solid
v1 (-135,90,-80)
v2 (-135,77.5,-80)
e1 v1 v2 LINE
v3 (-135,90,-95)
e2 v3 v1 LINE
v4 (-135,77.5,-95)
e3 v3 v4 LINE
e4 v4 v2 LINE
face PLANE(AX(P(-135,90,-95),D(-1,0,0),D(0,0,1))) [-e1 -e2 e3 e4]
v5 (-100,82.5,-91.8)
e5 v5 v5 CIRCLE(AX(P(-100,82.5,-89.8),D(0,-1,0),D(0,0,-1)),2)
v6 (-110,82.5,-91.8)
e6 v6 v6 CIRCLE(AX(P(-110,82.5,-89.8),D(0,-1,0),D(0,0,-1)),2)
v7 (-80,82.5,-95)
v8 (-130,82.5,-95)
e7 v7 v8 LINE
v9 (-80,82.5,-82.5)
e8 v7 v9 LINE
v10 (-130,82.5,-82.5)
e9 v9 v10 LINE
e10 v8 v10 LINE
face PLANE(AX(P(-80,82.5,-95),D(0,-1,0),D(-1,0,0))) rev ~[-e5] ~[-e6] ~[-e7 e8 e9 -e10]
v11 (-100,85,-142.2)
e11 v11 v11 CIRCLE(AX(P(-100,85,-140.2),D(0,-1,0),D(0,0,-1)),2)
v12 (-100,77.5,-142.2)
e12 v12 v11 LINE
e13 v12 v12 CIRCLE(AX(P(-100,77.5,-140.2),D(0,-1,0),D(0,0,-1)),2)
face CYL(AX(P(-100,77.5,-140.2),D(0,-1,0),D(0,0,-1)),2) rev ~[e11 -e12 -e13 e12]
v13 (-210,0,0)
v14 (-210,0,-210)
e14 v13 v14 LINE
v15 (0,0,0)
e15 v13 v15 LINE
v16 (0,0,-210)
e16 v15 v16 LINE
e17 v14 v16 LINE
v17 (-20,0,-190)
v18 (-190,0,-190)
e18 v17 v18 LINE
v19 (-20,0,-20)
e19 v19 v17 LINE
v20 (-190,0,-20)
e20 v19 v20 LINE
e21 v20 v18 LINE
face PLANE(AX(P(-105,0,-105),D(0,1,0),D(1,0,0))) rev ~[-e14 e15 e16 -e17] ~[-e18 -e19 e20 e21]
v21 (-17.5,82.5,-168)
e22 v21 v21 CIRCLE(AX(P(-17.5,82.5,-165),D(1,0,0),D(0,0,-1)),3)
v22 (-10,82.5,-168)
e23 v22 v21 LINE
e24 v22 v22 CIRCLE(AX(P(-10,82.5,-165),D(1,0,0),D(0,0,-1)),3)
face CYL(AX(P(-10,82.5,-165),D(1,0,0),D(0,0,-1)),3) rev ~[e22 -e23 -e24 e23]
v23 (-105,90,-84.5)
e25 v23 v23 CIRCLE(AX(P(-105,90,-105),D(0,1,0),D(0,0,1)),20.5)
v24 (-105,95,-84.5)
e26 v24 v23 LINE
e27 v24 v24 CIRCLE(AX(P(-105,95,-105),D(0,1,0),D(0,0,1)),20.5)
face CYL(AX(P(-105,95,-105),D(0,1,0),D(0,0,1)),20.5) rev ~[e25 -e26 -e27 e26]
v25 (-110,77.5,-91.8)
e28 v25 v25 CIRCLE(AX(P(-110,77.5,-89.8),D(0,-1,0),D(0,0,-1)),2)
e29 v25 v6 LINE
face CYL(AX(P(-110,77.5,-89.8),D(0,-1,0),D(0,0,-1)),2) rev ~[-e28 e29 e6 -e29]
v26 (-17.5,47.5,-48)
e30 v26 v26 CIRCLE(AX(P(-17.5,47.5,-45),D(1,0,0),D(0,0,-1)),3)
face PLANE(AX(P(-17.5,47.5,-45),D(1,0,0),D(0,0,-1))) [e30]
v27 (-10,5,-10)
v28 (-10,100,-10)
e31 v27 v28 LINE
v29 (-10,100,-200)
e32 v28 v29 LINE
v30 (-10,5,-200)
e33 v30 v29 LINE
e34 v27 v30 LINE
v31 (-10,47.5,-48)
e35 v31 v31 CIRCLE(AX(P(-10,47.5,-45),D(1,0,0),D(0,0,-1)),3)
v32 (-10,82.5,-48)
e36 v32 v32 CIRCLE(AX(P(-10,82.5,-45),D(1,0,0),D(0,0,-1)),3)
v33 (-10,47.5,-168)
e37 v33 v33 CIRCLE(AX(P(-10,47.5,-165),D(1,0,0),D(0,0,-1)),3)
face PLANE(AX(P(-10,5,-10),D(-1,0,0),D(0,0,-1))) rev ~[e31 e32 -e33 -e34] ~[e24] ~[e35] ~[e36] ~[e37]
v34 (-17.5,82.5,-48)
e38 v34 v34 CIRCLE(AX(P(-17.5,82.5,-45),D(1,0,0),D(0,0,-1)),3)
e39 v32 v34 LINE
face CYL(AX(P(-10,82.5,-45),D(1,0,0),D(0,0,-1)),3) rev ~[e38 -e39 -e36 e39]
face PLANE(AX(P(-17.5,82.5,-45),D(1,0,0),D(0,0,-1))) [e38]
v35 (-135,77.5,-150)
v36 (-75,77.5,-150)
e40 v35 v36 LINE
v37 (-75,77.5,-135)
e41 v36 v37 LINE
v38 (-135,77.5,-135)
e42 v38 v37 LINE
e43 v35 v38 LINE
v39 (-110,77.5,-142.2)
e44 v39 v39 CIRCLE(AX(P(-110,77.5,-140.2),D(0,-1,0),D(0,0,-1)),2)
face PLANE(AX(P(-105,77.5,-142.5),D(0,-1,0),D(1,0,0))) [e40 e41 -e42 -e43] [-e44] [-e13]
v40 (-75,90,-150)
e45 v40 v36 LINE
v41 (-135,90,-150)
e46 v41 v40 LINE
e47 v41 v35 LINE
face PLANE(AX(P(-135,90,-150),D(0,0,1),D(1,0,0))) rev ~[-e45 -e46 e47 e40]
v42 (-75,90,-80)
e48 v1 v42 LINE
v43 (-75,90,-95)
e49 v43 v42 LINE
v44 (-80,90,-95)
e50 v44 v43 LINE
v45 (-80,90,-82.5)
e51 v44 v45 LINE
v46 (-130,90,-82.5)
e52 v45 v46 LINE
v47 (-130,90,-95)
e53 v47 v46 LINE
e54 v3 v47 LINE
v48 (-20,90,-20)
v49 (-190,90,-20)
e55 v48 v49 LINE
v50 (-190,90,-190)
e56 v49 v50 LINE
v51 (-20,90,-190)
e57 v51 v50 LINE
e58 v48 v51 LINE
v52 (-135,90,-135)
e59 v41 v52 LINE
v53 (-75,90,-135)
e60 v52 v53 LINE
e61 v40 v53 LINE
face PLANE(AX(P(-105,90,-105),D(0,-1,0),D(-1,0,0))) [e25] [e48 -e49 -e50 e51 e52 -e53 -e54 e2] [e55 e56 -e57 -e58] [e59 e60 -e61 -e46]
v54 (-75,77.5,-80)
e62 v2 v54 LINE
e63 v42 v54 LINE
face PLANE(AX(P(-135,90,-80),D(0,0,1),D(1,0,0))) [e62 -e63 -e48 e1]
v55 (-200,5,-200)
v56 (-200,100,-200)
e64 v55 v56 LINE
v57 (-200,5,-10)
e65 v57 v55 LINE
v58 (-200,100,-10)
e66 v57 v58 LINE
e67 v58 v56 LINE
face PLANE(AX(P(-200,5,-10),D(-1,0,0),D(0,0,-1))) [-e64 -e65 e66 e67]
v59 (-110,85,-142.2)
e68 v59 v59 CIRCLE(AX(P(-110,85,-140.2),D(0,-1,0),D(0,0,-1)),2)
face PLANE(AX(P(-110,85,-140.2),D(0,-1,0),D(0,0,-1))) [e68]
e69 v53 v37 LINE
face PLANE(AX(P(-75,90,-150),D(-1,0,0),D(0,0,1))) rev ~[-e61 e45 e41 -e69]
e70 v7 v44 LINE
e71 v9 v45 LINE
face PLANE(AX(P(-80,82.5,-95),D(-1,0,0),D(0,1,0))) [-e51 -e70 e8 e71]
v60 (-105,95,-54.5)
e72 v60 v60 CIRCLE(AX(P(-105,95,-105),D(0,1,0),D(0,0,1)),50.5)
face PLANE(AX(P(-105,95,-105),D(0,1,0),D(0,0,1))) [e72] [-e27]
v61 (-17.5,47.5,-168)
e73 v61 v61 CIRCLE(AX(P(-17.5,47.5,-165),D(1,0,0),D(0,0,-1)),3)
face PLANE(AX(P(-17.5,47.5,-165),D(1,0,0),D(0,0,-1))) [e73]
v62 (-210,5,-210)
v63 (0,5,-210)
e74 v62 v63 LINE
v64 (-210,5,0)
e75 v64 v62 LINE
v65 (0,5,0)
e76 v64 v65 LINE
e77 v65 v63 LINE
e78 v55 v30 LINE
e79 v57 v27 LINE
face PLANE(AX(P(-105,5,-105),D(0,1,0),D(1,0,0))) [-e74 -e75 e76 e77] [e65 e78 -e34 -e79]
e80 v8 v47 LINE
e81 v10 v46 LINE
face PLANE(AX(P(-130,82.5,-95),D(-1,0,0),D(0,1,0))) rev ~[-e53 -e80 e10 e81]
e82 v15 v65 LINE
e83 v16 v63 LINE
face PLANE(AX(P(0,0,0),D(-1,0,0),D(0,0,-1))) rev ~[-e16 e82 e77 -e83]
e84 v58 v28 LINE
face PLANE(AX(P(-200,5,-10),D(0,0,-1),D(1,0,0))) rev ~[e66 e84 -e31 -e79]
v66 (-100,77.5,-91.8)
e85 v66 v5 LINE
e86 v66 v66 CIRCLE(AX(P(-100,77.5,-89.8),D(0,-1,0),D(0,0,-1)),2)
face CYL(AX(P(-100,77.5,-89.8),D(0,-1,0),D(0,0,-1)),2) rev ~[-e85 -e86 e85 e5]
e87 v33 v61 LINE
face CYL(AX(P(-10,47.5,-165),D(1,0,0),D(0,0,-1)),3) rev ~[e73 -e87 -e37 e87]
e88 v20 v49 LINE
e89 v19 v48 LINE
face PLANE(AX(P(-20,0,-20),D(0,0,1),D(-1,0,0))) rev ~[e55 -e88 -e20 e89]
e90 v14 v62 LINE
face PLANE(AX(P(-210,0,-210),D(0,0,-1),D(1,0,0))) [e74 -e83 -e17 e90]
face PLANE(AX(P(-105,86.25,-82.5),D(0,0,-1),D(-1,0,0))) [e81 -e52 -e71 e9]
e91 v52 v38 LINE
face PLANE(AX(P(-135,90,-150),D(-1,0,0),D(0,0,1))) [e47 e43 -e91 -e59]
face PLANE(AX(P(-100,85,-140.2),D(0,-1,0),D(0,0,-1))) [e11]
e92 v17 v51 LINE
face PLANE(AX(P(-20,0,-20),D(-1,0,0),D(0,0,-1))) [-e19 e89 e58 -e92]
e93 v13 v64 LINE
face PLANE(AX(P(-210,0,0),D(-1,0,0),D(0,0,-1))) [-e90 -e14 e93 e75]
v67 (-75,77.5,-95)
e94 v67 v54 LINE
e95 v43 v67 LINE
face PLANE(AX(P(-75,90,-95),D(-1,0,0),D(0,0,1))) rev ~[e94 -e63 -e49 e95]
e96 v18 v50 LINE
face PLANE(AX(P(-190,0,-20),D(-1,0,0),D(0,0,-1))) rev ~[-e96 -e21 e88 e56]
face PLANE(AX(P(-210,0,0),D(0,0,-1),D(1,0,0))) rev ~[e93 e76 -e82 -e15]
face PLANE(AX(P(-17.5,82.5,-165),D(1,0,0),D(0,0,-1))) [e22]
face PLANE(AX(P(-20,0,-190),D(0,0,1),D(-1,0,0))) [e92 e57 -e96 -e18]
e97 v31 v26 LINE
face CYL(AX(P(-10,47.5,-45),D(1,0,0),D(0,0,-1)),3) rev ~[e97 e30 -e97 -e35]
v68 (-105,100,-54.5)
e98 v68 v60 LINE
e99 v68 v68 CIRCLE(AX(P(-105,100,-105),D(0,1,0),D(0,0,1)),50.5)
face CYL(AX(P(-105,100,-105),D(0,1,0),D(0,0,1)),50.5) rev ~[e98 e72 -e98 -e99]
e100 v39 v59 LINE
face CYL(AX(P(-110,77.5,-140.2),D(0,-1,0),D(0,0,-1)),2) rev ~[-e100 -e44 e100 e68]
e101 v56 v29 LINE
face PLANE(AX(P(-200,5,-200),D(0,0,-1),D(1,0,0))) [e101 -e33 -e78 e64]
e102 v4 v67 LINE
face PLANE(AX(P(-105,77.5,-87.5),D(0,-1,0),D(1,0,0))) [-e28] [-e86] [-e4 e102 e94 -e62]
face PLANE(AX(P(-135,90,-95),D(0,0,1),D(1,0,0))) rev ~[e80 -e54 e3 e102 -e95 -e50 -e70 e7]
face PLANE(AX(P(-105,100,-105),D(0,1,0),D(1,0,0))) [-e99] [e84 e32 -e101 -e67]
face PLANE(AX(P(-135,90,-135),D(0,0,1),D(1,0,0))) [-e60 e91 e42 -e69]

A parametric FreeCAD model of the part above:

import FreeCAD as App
import Part
import Sketcher
from FreeCAD import Vector
Q = App.Units.Quantity

doc = App.newDocument("Part")
body = doc.addObject("PartDesign::Body", "Body")

# Sketch on XZ plane
sketch1 = body.newObject("Sketcher::SketchObject", "Sketch")
sketch1.AttachmentSupport = (doc.getObject("XZ_Plane"), [""])
sketch1.MapMode = "FlatFace"
sketch1.addGeometry(Part.LineSegment(Vector(-210, -210, 0), Vector(-210, 0, 0)), False)
sketch1.addGeometry(Part.LineSegment(Vector(-210, 0, 0), Vector(0, 0, 0)), False)
sketch1.addGeometry(Part.LineSegment(Vector(0, 0, 0), Vector(0, -210, 0)), False)
sketch1.addGeometry(Part.LineSegment(Vector(0, -210, 0), Vector(-210, -210, 0)), False)
sketch1.addConstraint(Sketcher.Constraint("Coincident", 0, 2, 1, 1))
sketch1.addConstraint(Sketcher.Constraint("Coincident", 1, 2, 2, 1))
sketch1.addConstraint(Sketcher.Constraint("Coincident", 2, 2, 3, 1))
sketch1.addConstraint(Sketcher.Constraint("Coincident", 3, 2, 0, 1))
sketch1.addConstraint(Sketcher.Constraint("Vertical", 0))
sketch1.addConstraint(Sketcher.Constraint("Horizontal", 1))
sketch1.addConstraint(Sketcher.Constraint("Vertical", 2))
sketch1.addConstraint(Sketcher.Constraint("Horizontal", 3))
sketch1.addConstraint(Sketcher.Constraint("Coincident", 1, 2, -1, 1))
sketch1.addConstraint(Sketcher.Constraint("Equal", 3, 0))
sketch1.addConstraint(Sketcher.Constraint("DistanceX", 1, 1, 1, 2, Q("210 mm")))
pad1 = body.newObject("PartDesign::Pad", "Pad")
pad1.Profile = sketch1
pad1.Length = 5
pad1.Reversed = True

# Sketch on XZ plane
sketch2 = body.newObject("Sketcher::SketchObject", "Sketch001")
sketch2.AttachmentSupport = (doc.getObject("XZ_Plane"), [""])
sketch2.MapMode = "FlatFace"
sketch2.AttachmentOffset = App.Placement(Vector(0, 0, -5), App.Rotation())
sketch2.addGeometry(Part.LineSegment(Vector(-200, -200, 0), Vector(-200, -10, 0)), False)
sketch2.addGeometry(Part.LineSegment(Vector(-200, -10, 0), Vector(-10, -10, 0)), False)
sketch2.addGeometry(Part.LineSegment(Vector(-10, -10, 0), Vector(-10, -200, 0)), False)
sketch2.addGeometry(Part.LineSegment(Vector(-10, -200, 0), Vector(-200, -200, 0)), False)
sketch2.addConstraint(Sketcher.Constraint("Coincident", 0, 2, 1, 1))
sketch2.addConstraint(Sketcher.Constraint("Coincident", 1, 2, 2, 1))
sketch2.addConstraint(Sketcher.Constraint("Coincident", 2, 2, 3, 1))
sketch2.addConstraint(Sketcher.Constraint("Coincident", 3, 2, 0, 1))
sketch2.addConstraint(Sketcher.Constraint("Vertical", 0))
sketch2.addConstraint(Sketcher.Constraint("Horizontal", 1))
sketch2.addConstraint(Sketcher.Constraint("Vertical", 2))
sketch2.addConstraint(Sketcher.Constraint("Horizontal", 3))
sketch2.addConstraint(Sketcher.Constraint("Equal", 3, 0))
sketch2.addConstraint(Sketcher.Constraint("DistanceX", 1, 1, 1, 2, Q("190 mm")))
sketch2.addConstraint(Sketcher.Constraint("DistanceX", 0, 2, -1, 1, Q("200 mm")))
sketch2.addConstraint(Sketcher.Constraint("DistanceY", 0, 2, -1, 1, Q("10 mm")))
pad2 = body.newObject("PartDesign::Pad", "Pad001")
pad2.Profile = sketch2
pad2.Length = 95
pad2.Reversed = True

# Sketch on XZ plane
sketch3 = body.newObject("Sketcher::SketchObject", "Sketch002")
sketch3.AttachmentSupport = (doc.getObject("XZ_Plane"), [""])
sketch3.MapMode = "FlatFace"
sketch3.addGeometry(Part.LineSegment(Vector(-20, -190, 0), Vector(-20, -20, 0)), False)
sketch3.addGeometry(Part.LineSegment(Vector(-20, -20, 0), Vector(-190, -20, 0)), False)
sketch3.addGeometry(Part.LineSegment(Vector(-190, -20, 0), Vector(-190, -190, 0)), False)
sketch3.addGeometry(Part.LineSegment(Vector(-190, -190, 0), Vector(-20, -190, 0)), False)
sketch3.addConstraint(Sketcher.Constraint("Coincident", 0, 2, 1, 1))
sketch3.addConstraint(Sketcher.Constraint("Coincident", 1, 2, 2, 1))
sketch3.addConstraint(Sketcher.Constraint("Coincident", 2, 2, 3, 1))
sketch3.addConstraint(Sketcher.Constraint("Coincident", 3, 2, 0, 1))
sketch3.addConstraint(Sketcher.Constraint("Vertical", 0))
sketch3.addConstraint(Sketcher.Constraint("Horizontal", 1))
sketch3.addConstraint(Sketcher.Constraint("Vertical", 2))
sketch3.addConstraint(Sketcher.Constraint("Horizontal", 3))
sketch3.addConstraint(Sketcher.Constraint("Equal", 3, 0))
sketch3.addConstraint(Sketcher.Constraint("DistanceX", 1, 2, 1, 1, Q("170 mm")))
sketch3.addConstraint(Sketcher.Constraint("DistanceX", 0, 2, -1, 1, Q("20 mm")))
sketch3.addConstraint(Sketcher.Constraint("DistanceY", 0, 2, -1, 1, Q("20 mm")))
pocket1 = body.newObject("PartDesign::Pocket", "Pocket")
pocket1.Profile = sketch3
pocket1.Length = 90

# Sketch on XZ plane
sketch4 = body.newObject("Sketcher::SketchObject", "Sketch003")
sketch4.AttachmentSupport = (doc.getObject("XZ_Plane"), [""])
sketch4.MapMode = "FlatFace"
sketch4.AttachmentOffset = App.Placement(Vector(0, 0, -100), App.Rotation())
sketch4.addGeometry(Part.Circle(Vector(-105, -105, 0), Vector(0, 0, 1), 50), False)
sketch4.addConstraint(Sketcher.Constraint("Diameter", 0, Q("101 mm")))
sketch4.addConstraint(Sketcher.Constraint("DistanceX", 0, 3, -1, 1, Q("105 mm")))
sketch4.addConstraint(Sketcher.Constraint("DistanceY", 0, 3, -1, 1, Q("105 mm")))
pocket2 = body.newObject("PartDesign::Pocket", "Pocket001")
pocket2.Profile = sketch4
pocket2.Length = 5
pocket2.Reversed = True

# Sketch on XZ plane
sketch5 = body.newObject("Sketcher::SketchObject", "Sketch004")
sketch5.AttachmentSupport = (doc.getObject("XZ_Plane"), [""])
sketch5.MapMode = "FlatFace"
sketch5.AttachmentOffset = App.Placement(Vector(0, 0, -95), App.Rotation())
sketch5.addGeometry(Part.Circle(Vector(-105, -105, 0), Vector(0, 0, 1), 20), False)
sketch5.addConstraint(Sketcher.Constraint("Diameter", 0, Q("41 mm")))
sketch5.addConstraint(Sketcher.Constraint("DistanceX", 0, 3, -1, 1, Q("105 mm")))
sketch5.addConstraint(Sketcher.Constraint("DistanceY", 0, 3, -1, 1, Q("105 mm")))
pocket3 = body.newObject("PartDesign::Pocket", "Pocket002")
pocket3.Profile = sketch5
pocket3.Length = 5
pocket3.Reversed = True

# Sketch on XZ plane
sketch6 = body.newObject("Sketcher::SketchObject", "Sketch005")
sketch6.AttachmentSupport = (doc.getObject("XZ_Plane"), [""])
sketch6.MapMode = "FlatFace"
sketch6.AttachmentOffset = App.Placement(Vector(0, 0, -90), App.Rotation())
sketch6.addGeometry(Part.LineSegment(Vector(-135, -80, 0), Vector(-135, -95, 0)), False)
sketch6.addGeometry(Part.LineSegment(Vector(-135, -95, 0), Vector(-75, -95, 0)), False)
sketch6.addGeometry(Part.LineSegment(Vector(-75, -95, 0), Vector(-75, -80, 0)), False)
sketch6.addGeometry(Part.LineSegment(Vector(-75, -80, 0), Vector(-135, -80, 0)), False)
sketch6.addGeometry(Part.LineSegment(Vector(-135, -135, 0), Vector(-135, -150, 0)), False)
sketch6.addGeometry(Part.LineSegment(Vector(-135, -150, 0), Vector(-75, -150, 0)), False)
sketch6.addGeometry(Part.LineSegment(Vector(-75, -150, 0), Vector(-75, -135, 0)), False)
sketch6.addGeometry(Part.LineSegment(Vector(-75, -135, 0), Vector(-135, -135, 0)), False)
sketch6.addConstraint(Sketcher.Constraint("Coincident", 0, 2, 1, 1))
sketch6.addConstraint(Sketcher.Constraint("Coincident", 1, 2, 2, 1))
sketch6.addConstraint(Sketcher.Constraint("Coincident", 2, 2, 3, 1))
sketch6.addConstraint(Sketcher.Constraint("Coincident", 3, 2, 0, 1))
sketch6.addConstraint(Sketcher.Constraint("Coincident", 4, 2, 5, 1))
sketch6.addConstraint(Sketcher.Constraint("Coincident", 5, 2, 6, 1))
sketch6.addConstraint(Sketcher.Constraint("Coincident", 6, 2, 7, 1))
sketch6.addConstraint(Sketcher.Constraint("Coincident", 7, 2, 4, 1))
sketch6.addConstraint(Sketcher.Constraint("Vertical", 0))
sketch6.addConstraint(Sketcher.Constraint("Horizontal", 1))
sketch6.addConstraint(Sketcher.Constraint("Vertical", 2))
sketch6.addConstraint(Sketcher.Constraint("Horizontal", 3))
sketch6.addConstraint(Sketcher.Constraint("Vertical", 4))
sketch6.addConstraint(Sketcher.Constraint("Horizontal", 5))
sketch6.addConstraint(Sketcher.Constraint("Vertical", 6))
sketch6.addConstraint(Sketcher.Constraint("Horizontal", 7))
sketch6.addConstraint(Sketcher.Constraint("Vertical", 3, 2, 4, 2))
sketch6.addConstraint(Sketcher.Constraint("Vertical", 2, 2, 5, 2))
sketch6.addConstraint(Sketcher.Constraint("Equal", 2, 4))
sketch6.addConstraint(Sketcher.Constraint("DistanceX", 1, 1, 1, 2, Q("60 mm")))
sketch6.addConstraint(Sketcher.Constraint("DistanceY", 0, 2, 0, 1, Q("15 mm")))
sketch6.addConstraint(Sketcher.Constraint("DistanceX", 0, 2, -1, 1, Q("135 mm")))
sketch6.addConstraint(Sketcher.Constraint("DistanceY", 0, 2, -1, 1, Q("95 mm")))
sketch6.addConstraint(Sketcher.Constraint("DistanceY", 4, 2, -1, 1, Q("150 mm")))
pad3 = body.newObject("PartDesign::Pad", "Pad002")
pad3.Profile = sketch6
pad3.Length = 12.5

# Sketch on XY plane
sketch7 = body.newObject("Sketcher::SketchObject", "Sketch006")
sketch7.AttachmentSupport = (doc.getObject("XY_Plane"), [""])
sketch7.MapMode = "FlatFace"
sketch7.AttachmentOffset = App.Placement(Vector(0, 0, -95), App.Rotation())
sketch7.addGeometry(Part.LineSegment(Vector(-80, 90, 0), Vector(-80, 82, 0)), False)
sketch7.addGeometry(Part.LineSegment(Vector(-80, 82, 0), Vector(-130, 82, 0)), False)
sketch7.addGeometry(Part.LineSegment(Vector(-130, 82, 0), Vector(-130, 90, 0)), False)
sketch7.addGeometry(Part.LineSegment(Vector(-130, 90, 0), Vector(-80, 90, 0)), False)
sketch7.addConstraint(Sketcher.Constraint("Coincident", 0, 2, 1, 1))
sketch7.addConstraint(Sketcher.Constraint("Coincident", 1, 2, 2, 1))
sketch7.addConstraint(Sketcher.Constraint("Coincident", 2, 2, 3, 1))
sketch7.addConstraint(Sketcher.Constraint("Coincident", 3, 2, 0, 1))
sketch7.addConstraint(Sketcher.Constraint("Vertical", 0))
sketch7.addConstraint(Sketcher.Constraint("Horizontal", 1))
sketch7.addConstraint(Sketcher.Constraint("Vertical", 2))
sketch7.addConstraint(Sketcher.Constraint("Horizontal", 3))
sketch7.addConstraint(Sketcher.Constraint("DistanceX", 1, 2, 1, 1, Q("50 mm")))
sketch7.addConstraint(Sketcher.Constraint("DistanceY", 0, 2, 0, 1, Q("7.5 mm")))
sketch7.addConstraint(Sketcher.Constraint("DistanceX", 0, 2, -1, 1, Q("80 mm")))
sketch7.addConstraint(Sketcher.Constraint("DistanceY", -1, 1, 2, 2, Q("90 mm")))
pocket4 = body.newObject("PartDesign::Pocket", "Pocket003")
pocket4.Profile = sketch7
pocket4.Length = 12.5
pocket4.Reversed = True

# Sketch on XZ plane
sketch8 = body.newObject("Sketcher::SketchObject", "Sketch007")
sketch8.AttachmentSupport = (doc.getObject("XZ_Plane"), [""])
sketch8.MapMode = "FlatFace"
sketch8.AttachmentOffset = App.Placement(Vector(0, 0, -77.5), App.Rotation())
sketch8.addGeometry(Part.Circle(Vector(-100, -89.8, 0), Vector(0, 0, 1), 2), False)
sketch8.addGeometry(Part.Circle(Vector(-110, -89.8, 0), Vector(0, 0, 1), 2), False)
sketch8.addGeometry(Part.Circle(Vector(-110, -140.2, 0), Vector(0, 0, 1), 2), False)
sketch8.addGeometry(Part.Circle(Vector(-100, -140.2, 0), Vector(0, 0, 1), 2), False)
sketch8.addConstraint(Sketcher.Constraint("Equal", 0, 1))
sketch8.addConstraint(Sketcher.Constraint("Equal", 1, 2))
sketch8.addConstraint(Sketcher.Constraint("Equal", 2, 3))
sketch8.addConstraint(Sketcher.Constraint("Horizontal", 0, 3, 1, 3))
sketch8.addConstraint(Sketcher.Constraint("Horizontal", 2, 3, 3, 3))
sketch8.addConstraint(Sketcher.Constraint("Vertical", 1, 3, 2, 3))
sketch8.addConstraint(Sketcher.Constraint("Vertical", 0, 3, 3, 3))
sketch8.addConstraint(Sketcher.Constraint("Diameter", 0, Q("4 mm")))
sketch8.addConstraint(Sketcher.Constraint("DistanceX", 0, 3, -1, 1, Q("100 mm")))
sketch8.addConstraint(Sketcher.Constraint("DistanceX", 1, 3, -1, 1, Q("110 mm")))
sketch8.addConstraint(Sketcher.Constraint("DistanceY", 0, 3, -1, 1, Q("89.8 mm")))
sketch8.addConstraint(Sketcher.Constraint("DistanceY", 2, 3, -1, 1, Q("140.2 mm")))
pocket5 = body.newObject("PartDesign::Pocket", "Pocket004")
pocket5.Profile = sketch8
pocket5.Length = 7.5

# Sketch on YZ plane
sketch9 = body.newObject("Sketcher::SketchObject", "Sketch008")
sketch9.AttachmentSupport = (doc.getObject("YZ_Plane"), [""])
sketch9.MapMode = "FlatFace"
sketch9.AttachmentOffset = App.Placement(Vector(0, 0, -10), App.Rotation())
sketch9.addGeometry(Part.Circle(Vector(47.5, -165, 0), Vector(0, 0, 1), 3), False)
sketch9.addGeometry(Part.Circle(Vector(47.5, -45, 0), Vector(0, 0, 1), 3), False)
sketch9.addGeometry(Part.Circle(Vector(82.5, -45, 0), Vector(0, 0, 1), 3), False)
sketch9.addGeometry(Part.Circle(Vector(82.5, -165, 0), Vector(0, 0, 1), 3), False)
sketch9.addConstraint(Sketcher.Constraint("Equal", 0, 1))
sketch9.addConstraint(Sketcher.Constraint("Equal", 1, 2))
sketch9.addConstraint(Sketcher.Constraint("Equal", 2, 3))
sketch9.addConstraint(Sketcher.Constraint("Horizontal", 1, 3, 2, 3))
sketch9.addConstraint(Sketcher.Constraint("Horizontal", 0, 3, 3, 3))
sketch9.addConstraint(Sketcher.Constraint("Vertical", 0, 3, 1, 3))
sketch9.addConstraint(Sketcher.Constraint("Vertical", 2, 3, 3, 3))
sketch9.addConstraint(Sketcher.Constraint("Diameter", 0, Q("6 mm")))
sketch9.addConstraint(Sketcher.Constraint("DistanceY", 0, 3, -1, 1, Q("165 mm")))
sketch9.addConstraint(Sketcher.Constraint("DistanceY", 1, 3, -1, 1, Q("45 mm")))
sketch9.addConstraint(Sketcher.Constraint("DistanceX", 1, 3, 2, 3, Q("35 mm")))
sketch9.addConstraint(Sketcher.Constraint("DistanceX", -1, 1, 0, 3, Q("47.5 mm")))
pocket6 = body.newObject("PartDesign::Pocket", "Pocket005")
pocket6.Profile = sketch9
pocket6.Length = 7.5

doc.recompute()
